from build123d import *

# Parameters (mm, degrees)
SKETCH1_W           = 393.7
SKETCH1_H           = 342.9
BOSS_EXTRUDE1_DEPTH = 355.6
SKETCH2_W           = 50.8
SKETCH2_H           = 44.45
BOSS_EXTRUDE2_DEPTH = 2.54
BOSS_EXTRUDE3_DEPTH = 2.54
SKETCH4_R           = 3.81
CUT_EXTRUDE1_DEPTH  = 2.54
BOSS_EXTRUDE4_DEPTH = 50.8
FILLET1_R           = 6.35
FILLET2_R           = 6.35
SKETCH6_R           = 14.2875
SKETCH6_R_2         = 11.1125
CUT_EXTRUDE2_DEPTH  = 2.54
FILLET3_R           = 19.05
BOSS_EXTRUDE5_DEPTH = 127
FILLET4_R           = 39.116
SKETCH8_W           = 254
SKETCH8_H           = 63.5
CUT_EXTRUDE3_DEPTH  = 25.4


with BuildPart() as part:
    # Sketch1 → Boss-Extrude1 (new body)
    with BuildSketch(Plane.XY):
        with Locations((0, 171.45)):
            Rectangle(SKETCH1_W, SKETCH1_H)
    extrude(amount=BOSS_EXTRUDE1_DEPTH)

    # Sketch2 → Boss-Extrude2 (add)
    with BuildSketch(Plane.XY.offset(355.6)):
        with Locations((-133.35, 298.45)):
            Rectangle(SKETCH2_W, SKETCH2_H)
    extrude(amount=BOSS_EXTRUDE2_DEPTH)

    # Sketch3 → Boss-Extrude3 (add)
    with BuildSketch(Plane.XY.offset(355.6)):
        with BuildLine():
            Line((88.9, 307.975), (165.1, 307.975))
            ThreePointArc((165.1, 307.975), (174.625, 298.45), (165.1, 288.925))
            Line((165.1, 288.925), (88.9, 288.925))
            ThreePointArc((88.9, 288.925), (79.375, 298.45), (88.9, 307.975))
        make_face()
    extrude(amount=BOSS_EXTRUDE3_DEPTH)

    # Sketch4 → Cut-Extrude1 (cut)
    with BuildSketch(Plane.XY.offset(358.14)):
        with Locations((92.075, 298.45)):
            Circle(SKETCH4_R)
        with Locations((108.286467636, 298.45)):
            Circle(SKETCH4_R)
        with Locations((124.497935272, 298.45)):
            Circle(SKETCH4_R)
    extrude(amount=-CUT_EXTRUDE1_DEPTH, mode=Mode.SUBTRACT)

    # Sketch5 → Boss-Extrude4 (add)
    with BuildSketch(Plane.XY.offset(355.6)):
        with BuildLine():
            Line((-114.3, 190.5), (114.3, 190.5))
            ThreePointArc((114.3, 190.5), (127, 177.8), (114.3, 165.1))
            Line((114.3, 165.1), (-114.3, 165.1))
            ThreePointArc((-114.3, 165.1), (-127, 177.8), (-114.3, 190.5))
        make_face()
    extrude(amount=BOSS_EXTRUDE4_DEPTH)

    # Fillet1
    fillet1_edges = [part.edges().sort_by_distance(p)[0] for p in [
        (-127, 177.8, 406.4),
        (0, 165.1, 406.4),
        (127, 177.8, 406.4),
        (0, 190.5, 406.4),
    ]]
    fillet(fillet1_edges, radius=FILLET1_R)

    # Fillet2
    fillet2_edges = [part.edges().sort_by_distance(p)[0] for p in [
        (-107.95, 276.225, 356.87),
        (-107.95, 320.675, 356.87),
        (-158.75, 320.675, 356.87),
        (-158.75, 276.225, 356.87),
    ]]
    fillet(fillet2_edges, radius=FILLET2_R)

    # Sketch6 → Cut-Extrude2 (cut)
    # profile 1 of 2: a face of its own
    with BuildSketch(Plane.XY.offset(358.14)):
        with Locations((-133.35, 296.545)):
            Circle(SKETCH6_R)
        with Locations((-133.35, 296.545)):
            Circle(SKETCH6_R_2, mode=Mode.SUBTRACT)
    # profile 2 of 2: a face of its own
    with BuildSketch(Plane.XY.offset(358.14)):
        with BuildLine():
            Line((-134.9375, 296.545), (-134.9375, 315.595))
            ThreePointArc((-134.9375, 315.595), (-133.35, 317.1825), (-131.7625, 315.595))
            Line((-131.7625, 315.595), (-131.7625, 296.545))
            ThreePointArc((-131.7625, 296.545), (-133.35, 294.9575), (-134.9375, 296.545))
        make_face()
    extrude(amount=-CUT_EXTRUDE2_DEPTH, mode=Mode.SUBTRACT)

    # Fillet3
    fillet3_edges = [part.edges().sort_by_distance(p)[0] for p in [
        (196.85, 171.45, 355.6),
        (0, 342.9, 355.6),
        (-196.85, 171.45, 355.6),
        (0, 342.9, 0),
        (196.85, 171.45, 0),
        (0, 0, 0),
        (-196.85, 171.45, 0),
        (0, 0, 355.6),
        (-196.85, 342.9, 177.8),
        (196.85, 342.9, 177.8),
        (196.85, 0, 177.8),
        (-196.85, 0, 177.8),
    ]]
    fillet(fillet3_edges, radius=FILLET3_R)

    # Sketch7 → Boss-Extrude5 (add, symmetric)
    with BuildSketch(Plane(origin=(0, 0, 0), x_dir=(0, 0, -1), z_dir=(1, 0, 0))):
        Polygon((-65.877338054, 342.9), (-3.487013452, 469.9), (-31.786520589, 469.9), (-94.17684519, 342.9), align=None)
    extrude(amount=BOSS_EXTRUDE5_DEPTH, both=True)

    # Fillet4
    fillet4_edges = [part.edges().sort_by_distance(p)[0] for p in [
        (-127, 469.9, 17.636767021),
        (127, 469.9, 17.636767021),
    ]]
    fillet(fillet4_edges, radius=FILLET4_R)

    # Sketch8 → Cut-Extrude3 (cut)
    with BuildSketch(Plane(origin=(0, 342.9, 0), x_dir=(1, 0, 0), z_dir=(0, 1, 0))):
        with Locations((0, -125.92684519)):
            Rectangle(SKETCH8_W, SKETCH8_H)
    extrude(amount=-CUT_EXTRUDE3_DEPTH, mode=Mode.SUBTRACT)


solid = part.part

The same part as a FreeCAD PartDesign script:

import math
import FreeCAD as App
import Part
import Sketcher
Q = App.Units.Quantity


def edges_at(feature, points):
    """Names of the edges that pass closest to the given points."""
    edges = feature.Shape.Edges
    near = lambda p: min(range(len(edges)), key=lambda i: edges[i].distToShape(Part.Vertex(*p))[0])
    return sorted({f"Edge{near(p) + 1}" for p in points})


def add_polygon(sketch, points):
    """Adds a closed chain of lines whose ends are joined by coincident constraints."""
    first, n = sketch.GeometryCount, len(points)
    for a, b in zip(points, points[1:] + points[:1]):
        sketch.addGeometry(Part.LineSegment(App.Vector(*a, 0), App.Vector(*b, 0)), False)
    for i in range(n):
        sketch.addConstraint(Sketcher.Constraint("Coincident", first + i, 2, first + (i + 1) % n, 1))

doc = App.newDocument("Part")
body = doc.addObject("PartDesign::Body", "Body")

# Sketch on XY plane
sketch1 = body.newObject("Sketcher::SketchObject", "Sketch")
sketch1.AttachmentSupport = (doc.getObject("XY_Plane"), [""])
sketch1.MapMode = "FlatFace"
add_polygon(sketch1, [(-196.85, 342.9), (-196.85, 0), (196.85, 0), (196.85, 342.9)])  # lines 0-3
sketch1.addConstraint([
    Sketcher.Constraint("Vertical", 0),
    Sketcher.Constraint("Horizontal", 1),
    Sketcher.Constraint("Vertical", 2),
    Sketcher.Constraint("Horizontal", 3),
    Sketcher.Constraint("Symmetric", 0, 2, 1, 2, -1, 1),
    Sketcher.Constraint("DistanceX", 1, 1, 1, 2, Q("15.5 in")),
    Sketcher.Constraint("DistanceY", 0, 2, 0, 1, Q("13.5 in")),
])
pad1 = body.newObject("PartDesign::Pad", "Pad")
pad1.Profile = sketch1
pad1.Length = Q("14 in")

# Sketch on XY plane
sketch2 = body.newObject("Sketcher::SketchObject", "Sketch001")
sketch2.AttachmentSupport = (doc.getObject("XY_Plane"), [""])
sketch2.MapMode = "FlatFace"
sketch2.AttachmentOffset = App.Placement(App.Vector(0, 0, 14 * 25.4), App.Rotation())
add_polygon(sketch2, [(-158.75, 320.675), (-158.75, 276.225), (-107.95, 276.225), (-107.95, 320.675)])  # lines 0-3
sketch2.addConstraint([
    Sketcher.Constraint("Vertical", 0),
    Sketcher.Constraint("Horizontal", 1),
    Sketcher.Constraint("Vertical", 2),
    Sketcher.Constraint("Horizontal", 3),
    Sketcher.Constraint("DistanceX", 1, 1, 1, 2, Q("2 in")),
    Sketcher.Constraint("DistanceY", 0, 2, 0, 1, Q("1.75 in")),
    Sketcher.Constraint("DistanceX", 0, 2, -1, 1, Q("6.25 in")),
    Sketcher.Constraint("DistanceY", -1, 1, 0, 2, Q("10.875 in")),
])
pad2 = body.newObject("PartDesign::Pad", "Pad001")
pad2.Profile = sketch2
pad2.Length = Q("0.1 in")

# Sketch on XY plane
sketch3 = body.newObject("Sketcher::SketchObject", "Sketch002")
sketch3.AttachmentSupport = (doc.getObject("XY_Plane"), [""])
sketch3.MapMode = "FlatFace"
sketch3.AttachmentOffset = App.Placement(App.Vector(0, 0, 14 * 25.4), App.Rotation())
sketch3.addGeometry([
    Part.LineSegment(App.Vector(165.1, 307.975, 0), App.Vector(88.9, 307.975, 0)),
    Part.ArcOfCircle(Part.Circle(App.Vector(88.9, 298.45, 0), App.Vector(0, 0, 1), 9.525), math.radians(90), math.radians(270)),
    Part.LineSegment(App.Vector(88.9, 288.925, 0), App.Vector(165.1, 288.925, 0)),
    Part.ArcOfCircle(Part.Circle(App.Vector(165.1, 298.45, 0), App.Vector(0, 0, 1), 9.525), math.radians(-90), math.radians(90)),
], False)
sketch3.addConstraint([
    Sketcher.Constraint("Tangent", 0, 2, 1, 1),
    Sketcher.Constraint("Tangent", 1, 2, 2, 1),
    Sketcher.Constraint("Tangent", 2, 2, 3, 1),
    Sketcher.Constraint("Tangent", 3, 2, 0, 1),
    Sketcher.Constraint("Horizontal", 0),
    Sketcher.Constraint("Horizontal", 2),
    Sketcher.Constraint("DistanceX", 0, 2, 0, 1, Q("3 in")),
    Sketcher.Constraint("Radius", 1, Q("0.375 in")),
    Sketcher.Constraint("DistanceX", -1, 1, 1, 3, Q("3.5 in")),
    Sketcher.Constraint("DistanceY", -1, 1, 1, 3, Q("11.75 in")),
])
pad3 = body.newObject("PartDesign::Pad", "Pad002")
pad3.Profile = sketch3
pad3.Length = Q("0.1 in")

# Sketch on XY plane
sketch4 = body.newObject("Sketcher::SketchObject", "Sketch003")
sketch4.AttachmentSupport = (doc.getObject("XY_Plane"), [""])
sketch4.MapMode = "FlatFace"
sketch4.AttachmentOffset = App.Placement(App.Vector(0, 0, 14.1 * 25.4), App.Rotation())
sketch4.addGeometry([
    Part.Circle(App.Vector(92.075, 298.45, 0), App.Vector(0, 0, 1), 3.81),
    Part.Circle(App.Vector(108.286468, 298.45, 0), App.Vector(0, 0, 1), 3.81),
    Part.Circle(App.Vector(124.497935, 298.45, 0), App.Vector(0, 0, 1), 3.81),
], False)
sketch4.addConstraint([
    Sketcher.Constraint("Equal", 0, 1),
    Sketcher.Constraint("Equal", 1, 2),
    Sketcher.Constraint("Horizontal", 0, 3, 1, 3),
    Sketcher.Constraint("Horizontal", 1, 3, 2, 3),
    Sketcher.Constraint("Diameter", 0, Q("0.3 in")),
    Sketcher.Constraint("DistanceY", -1, 1, 0, 3, Q("11.75 in")),
    Sketcher.Constraint("DistanceX", -1, 1, 0, 3, Q("3.625 in")),
    Sketcher.Constraint("DistanceX", -1, 1, 1, 3, Q("108.286468 mm")),
    Sketcher.Constraint("DistanceX", -1, 1, 2, 3, Q("124.497935 mm")),
])
pocket1 = body.newObject("PartDesign::Pocket", "Pocket")
pocket1.Profile = sketch4
pocket1.Length = Q("0.1 in")

# Sketch on XY plane
sketch5 = body.newObject("Sketcher::SketchObject", "Sketch004")
sketch5.AttachmentSupport = (doc.getObject("XY_Plane"), [""])
sketch5.MapMode = "FlatFace"
sketch5.AttachmentOffset = App.Placement(App.Vector(0, 0, 14 * 25.4), App.Rotation())
sketch5.addGeometry([
    Part.LineSegment(App.Vector(114.3, 190.5, 0), App.Vector(-114.3, 190.5, 0)),
    Part.ArcOfCircle(Part.Circle(App.Vector(-114.3, 177.8, 0), App.Vector(0, 0, 1), 12.7), math.radians(90), math.radians(270)),
    Part.LineSegment(App.Vector(-114.3, 165.1, 0), App.Vector(114.3, 165.1, 0)),
    Part.ArcOfCircle(Part.Circle(App.Vector(114.3, 177.8, 0), App.Vector(0, 0, 1), 12.7), math.radians(-90), math.radians(90)),
], False)
sketch5.addConstraint([
    Sketcher.Constraint("Tangent", 0, 2, 1, 1),
    Sketcher.Constraint("Tangent", 1, 2, 2, 1),
    Sketcher.Constraint("Tangent", 2, 2, 3, 1),
    Sketcher.Constraint("Tangent", 3, 2, 0, 1),
    Sketcher.Constraint("Horizontal", 0),
    Sketcher.Constraint("Horizontal", 2),
    Sketcher.Constraint("Radius", 1, Q("0.5 in")),
    Sketcher.Constraint("DistanceX", 0, 2, 0, 1, Q("9 in")),
    Sketcher.Constraint("DistanceY", -1, 1, 1, 3, Q("7 in")),
    Sketcher.Constraint("DistanceX", 1, 3, -1, 1, Q("4.5 in")),
])
pad4 = body.newObject("PartDesign::Pad", "Pad003")
pad4.Profile = sketch5
pad4.Length = Q("2 in")
doc.recompute()

fillet = body.newObject("PartDesign::Fillet", "Fillet")
fillet.Base = (pad4, edges_at(pad4, [
    (-127, 177.8, 406.4),
    (0, 165.1, 406.4),
    (127, 177.8, 406.4),
    (0, 190.5, 406.4),
]))
fillet.Radius = Q("0.25 in")
doc.recompute()

fillet2 = body.newObject("PartDesign::Fillet", "Fillet001")
fillet2.Base = (fillet, edges_at(fillet, [
    (-107.95, 276.225, 356.87),
    (-107.95, 320.675, 356.87),
    (-158.75, 320.675, 356.87),
    (-158.75, 276.225, 356.87),
]))
fillet2.Radius = Q("0.25 in")

# Sketch on XY plane
sketch6 = body.newObject("Sketcher::SketchObject", "Sketch005")
sketch6.AttachmentSupport = (doc.getObject("XY_Plane"), [""])
sketch6.MapMode = "FlatFace"
sketch6.AttachmentOffset = App.Placement(App.Vector(0, 0, 14.1 * 25.4), App.Rotation())
sketch6.addGeometry([
    Part.ArcOfCircle(Part.Circle(App.Vector(-133.35, 296.545, 0), App.Vector(0, 0, 1), 14.2875), math.radians(96.37937), math.radians(443.62063)),  # 0
    Part.LineSegment(App.Vector(-131.7625, 310.744032, 0), App.Vector(-131.7625, 315.595, 0)),  # 1
    Part.ArcOfCircle(Part.Circle(App.Vector(-133.35, 315.595, 0), App.Vector(0, 0, 1), 1.5875), math.radians(0), math.radians(180)),  # 2
    Part.LineSegment(App.Vector(-134.9375, 315.595, 0), App.Vector(-134.9375, 310.744032, 0)),  # 3
    Part.LineSegment(App.Vector(-134.9375, 307.543523, 0), App.Vector(-134.9375, 296.545, 0)),  # 4
    Part.ArcOfCircle(Part.Circle(App.Vector(-133.35, 296.545, 0), App.Vector(0, 0, 1), 1.5875), math.radians(180), math.radians(360)),  # 5
    Part.LineSegment(App.Vector(-131.7625, 296.545, 0), App.Vector(-131.7625, 307.543523, 0)),  # 6
    Part.ArcOfCircle(Part.Circle(App.Vector(-133.35, 296.545, 0), App.Vector(0, 0, 1), 11.1125), math.radians(98.213211), math.radians(441.786789)),  # 7
], False)
sketch6.addConstraint([
    Sketcher.Constraint("Coincident", 0, 2, 1, 1),
    Sketcher.Constraint("Tangent", 1, 2, 2, 1),
    Sketcher.Constraint("Tangent", 2, 2, 3, 1),
    Sketcher.Constraint("Coincident", 3, 2, 0, 1),
    Sketcher.Constraint("Tangent", 4, 2, 5, 1),
    Sketcher.Constraint("Tangent", 5, 2, 6, 1),
    Sketcher.Constraint("Coincident", 6, 2, 7, 2),
    Sketcher.Constraint("Coincident", 7, 1, 4, 1),
    Sketcher.Constraint("Vertical", 1),
    Sketcher.Constraint("Vertical", 3),
    Sketcher.Constraint("Vertical", 4),
    Sketcher.Constraint("Vertical", 6),
    Sketcher.Constraint("Coincident", 5, 3, 0, 3),
    Sketcher.Constraint("Coincident", 7, 3, 0, 3),
    Sketcher.Constraint("Equal", 2, 5),
    Sketcher.Constraint("Horizontal", 0, 2, 3, 2),
    Sketcher.Constraint("Radius", 0, Q("0.5625 in")),
    Sketcher.Constraint("Radius", 2, Q("0.0625 in")),
    Sketcher.Constraint("Radius", 7, Q("0.4375 in")),
    Sketcher.Constraint("DistanceX", 0, 3, -1, 1, Q("5.25 in")),
    Sketcher.Constraint("DistanceY", 0, 3, 2, 3, Q("0.75 in")),
    Sketcher.Constraint("DistanceY", -1, 1, 0, 3, Q("11.675 in")),
])
pocket2 = body.newObject("PartDesign::Pocket", "Pocket001")
pocket2.Profile = sketch6
pocket2.Length = Q("0.1 in")
doc.recompute()

fillet3 = body.newObject("PartDesign::Fillet", "Fillet002")
fillet3.Base = (pocket2, edges_at(pocket2, [
    (196.85, 171.45, 355.6),
    (0, 342.9, 355.6),
    (-196.85, 171.45, 355.6),
    (0, 342.9, 0),
    (196.85, 171.45, 0),
    (0, 0, 0),
    (-196.85, 171.45, 0),
    (0, 0, 355.6),
    (-196.85, 342.9, 177.8),
    (196.85, 342.9, 177.8),
    (196.85, 0, 177.8),
    (-196.85, 0, 177.8),
]))
fillet3.Radius = Q("0.75 in")

# Sketch on YZ plane
sketch7 = body.newObject("Sketcher::SketchObject", "Sketch006")
sketch7.AttachmentSupport = (doc.getObject("YZ_Plane"), [""])
sketch7.MapMode = "FlatFace"
add_polygon(sketch7, [(342.9, 65.877338), (469.9, 3.487013), (469.9, 31.786521), (342.9, 94.176845)])  # lines 0-3
sketch7.addConstraint([
    Sketcher.Constraint("Vertical", 1),
    Sketcher.Constraint("Vertical", 3),
    Sketcher.Constraint("Parallel", 0, 2),
    Sketcher.Constraint("DistanceX", 2, 2, 1, 2, Q("5 in")),
    Sketcher.Constraint("DistanceX", -1, 1, 0, 2, Q("18.5 in")),
    Sketcher.Constraint("DistanceY", 1, 1, 1, 2, Q("28.299507 mm")),
    Sketcher.Constraint("DistanceY", -1, 1, 1, 2, Q("31.786521 mm")),
    Sketcher.Constraint("DistanceY", -1, 1, 3, 2, Q("65.877338 mm")),
])
pad5 = body.newObject("PartDesign::Pad", "Pad004")
pad5.Profile = sketch7
pad5.Length = Q("10 in")
pad5.Midplane = True
doc.recompute()

fillet4 = body.newObject("PartDesign::Fillet", "Fillet003")
fillet4.Base = (pad5, edges_at(pad5, [(-127, 469.9, 17.637), (127, 469.9, 17.637)]))
fillet4.Radius = Q("1.54 in")

# Sketch on XZ plane
sketch8 = body.newObject("Sketcher::SketchObject", "Sketch007")
sketch8.AttachmentSupport = (doc.getObject("XZ_Plane"), [""])
sketch8.MapMode = "FlatFace"
sketch8.AttachmentOffset = App.Placement(App.Vector(0, 0, -13.5 * 25.4), App.Rotation())
add_polygon(sketch8, [(-127, 94.176845), (-127, 157.676845), (127, 157.676845), (127, 94.176845)])  # lines 0-3
sketch8.addConstraint([
    Sketcher.Constraint("Vertical", 0),
    Sketcher.Constraint("Horizontal", 1),
    Sketcher.Constraint("Vertical", 2),
    Sketcher.Constraint("Horizontal", 3),
    Sketcher.Constraint("DistanceX", 1, 1, 1, 2, Q("10 in")),
    Sketcher.Constraint("DistanceY", 0, 1, 0, 2, Q("2.5 in")),
    Sketcher.Constraint("DistanceX", 0, 2, -1, 1, Q("5 in")),
    Sketcher.Constraint("DistanceY", -1, 1, 0, 2, Q("157.676845 mm")),
])
pocket3 = body.newObject("PartDesign::Pocket", "Pocket002")
pocket3.Profile = sketch8
pocket3.Length = Q("1 in")
pocket3.Reversed = True

doc.recompute()
